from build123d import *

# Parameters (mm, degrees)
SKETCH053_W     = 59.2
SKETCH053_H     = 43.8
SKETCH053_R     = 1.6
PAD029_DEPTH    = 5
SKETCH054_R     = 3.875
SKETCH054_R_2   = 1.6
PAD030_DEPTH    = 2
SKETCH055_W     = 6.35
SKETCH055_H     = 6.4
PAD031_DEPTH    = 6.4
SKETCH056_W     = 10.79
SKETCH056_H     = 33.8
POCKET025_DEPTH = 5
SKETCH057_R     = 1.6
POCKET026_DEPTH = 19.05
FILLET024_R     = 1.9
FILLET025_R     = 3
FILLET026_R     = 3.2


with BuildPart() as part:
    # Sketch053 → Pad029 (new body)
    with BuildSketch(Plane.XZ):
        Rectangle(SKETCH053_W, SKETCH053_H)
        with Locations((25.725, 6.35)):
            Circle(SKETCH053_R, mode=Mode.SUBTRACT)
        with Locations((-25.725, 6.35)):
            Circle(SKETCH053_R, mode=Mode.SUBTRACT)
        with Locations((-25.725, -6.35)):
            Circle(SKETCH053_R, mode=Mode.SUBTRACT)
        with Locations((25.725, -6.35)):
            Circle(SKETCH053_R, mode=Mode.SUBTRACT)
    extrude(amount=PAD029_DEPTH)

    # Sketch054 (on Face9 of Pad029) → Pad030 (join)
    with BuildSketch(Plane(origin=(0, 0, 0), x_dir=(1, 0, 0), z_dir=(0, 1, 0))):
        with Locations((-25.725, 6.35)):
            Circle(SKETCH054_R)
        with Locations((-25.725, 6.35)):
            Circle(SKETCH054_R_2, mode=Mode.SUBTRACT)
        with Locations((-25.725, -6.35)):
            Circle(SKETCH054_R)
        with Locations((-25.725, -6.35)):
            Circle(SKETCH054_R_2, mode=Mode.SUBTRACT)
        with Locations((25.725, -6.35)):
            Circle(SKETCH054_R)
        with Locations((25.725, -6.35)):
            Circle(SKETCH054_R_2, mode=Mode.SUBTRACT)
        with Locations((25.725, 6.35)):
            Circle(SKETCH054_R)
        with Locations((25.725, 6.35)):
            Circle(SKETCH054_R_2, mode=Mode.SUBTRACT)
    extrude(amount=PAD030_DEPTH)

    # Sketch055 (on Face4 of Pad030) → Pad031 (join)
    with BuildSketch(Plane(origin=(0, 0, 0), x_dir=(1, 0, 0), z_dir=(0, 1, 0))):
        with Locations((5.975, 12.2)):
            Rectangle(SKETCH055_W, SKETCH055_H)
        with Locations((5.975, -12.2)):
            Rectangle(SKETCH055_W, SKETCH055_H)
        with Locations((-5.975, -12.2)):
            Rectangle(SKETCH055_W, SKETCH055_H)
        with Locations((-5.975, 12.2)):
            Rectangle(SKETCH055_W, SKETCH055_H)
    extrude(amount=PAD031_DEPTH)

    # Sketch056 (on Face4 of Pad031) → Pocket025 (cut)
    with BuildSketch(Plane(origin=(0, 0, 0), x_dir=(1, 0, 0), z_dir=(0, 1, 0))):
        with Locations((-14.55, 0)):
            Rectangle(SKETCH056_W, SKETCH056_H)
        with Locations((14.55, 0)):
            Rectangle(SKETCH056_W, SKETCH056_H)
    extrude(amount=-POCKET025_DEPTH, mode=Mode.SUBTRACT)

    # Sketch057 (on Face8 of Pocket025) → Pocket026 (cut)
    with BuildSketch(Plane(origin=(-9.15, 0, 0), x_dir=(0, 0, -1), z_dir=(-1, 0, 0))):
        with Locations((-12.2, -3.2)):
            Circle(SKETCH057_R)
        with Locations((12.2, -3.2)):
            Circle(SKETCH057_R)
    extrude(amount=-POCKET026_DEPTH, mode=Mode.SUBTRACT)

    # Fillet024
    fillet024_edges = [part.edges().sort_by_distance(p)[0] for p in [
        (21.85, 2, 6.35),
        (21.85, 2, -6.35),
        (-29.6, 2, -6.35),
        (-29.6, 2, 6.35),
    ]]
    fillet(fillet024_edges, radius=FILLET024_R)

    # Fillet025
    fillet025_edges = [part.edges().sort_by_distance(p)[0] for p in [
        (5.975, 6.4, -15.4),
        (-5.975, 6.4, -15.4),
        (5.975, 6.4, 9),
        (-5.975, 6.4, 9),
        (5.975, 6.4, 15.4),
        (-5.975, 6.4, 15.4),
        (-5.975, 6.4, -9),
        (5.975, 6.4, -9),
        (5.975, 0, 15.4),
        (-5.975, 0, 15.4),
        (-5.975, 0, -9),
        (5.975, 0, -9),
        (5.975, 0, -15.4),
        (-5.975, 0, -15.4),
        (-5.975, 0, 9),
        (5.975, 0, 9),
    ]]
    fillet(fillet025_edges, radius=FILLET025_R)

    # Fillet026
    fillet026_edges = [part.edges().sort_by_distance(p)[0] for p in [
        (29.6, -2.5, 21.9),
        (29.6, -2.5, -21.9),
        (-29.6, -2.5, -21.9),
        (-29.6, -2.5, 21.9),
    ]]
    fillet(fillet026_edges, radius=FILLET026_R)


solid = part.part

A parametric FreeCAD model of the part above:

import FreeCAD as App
import Part
import Sketcher

V = App.Vector


def edges_at(feature, points):
    """Names of the edges that pass closest to the given points."""
    edges = feature.Shape.Edges
    near = lambda p: min(range(len(edges)), key=lambda i: edges[i].distToShape(Part.Vertex(*p))[0])
    return sorted({f"Edge{near(p) + 1}" for p in points})


def add_polygon(sketch, points):
    """Adds a closed chain of lines whose ends are joined by coincident constraints."""
    first, n = sketch.GeometryCount, len(points)
    for a, b in zip(points, points[1:] + points[:1]):
        sketch.addGeometry(Part.LineSegment(App.Vector(*a, 0), App.Vector(*b, 0)), False)
    for i in range(n):
        sketch.addConstraint(Sketcher.Constraint("Coincident", first + i, 2, first + (i + 1) % n, 1))

doc = App.newDocument("Part")
body = doc.addObject("PartDesign::Body", "Body")

sketch1 = doc.addObject("Sketcher::SketchObject", "Sketch")
body.addObject(sketch1)
sketch1.AttachmentSupport = (doc.XZ_Plane, [""])
sketch1.MapMode = "FlatFace"
add_polygon(sketch1, [(-29.6, 21.9), (-29.6, -21.9), (29.6, -21.9), (29.6, 21.9)])
sketch1.addGeometry(Part.Circle(V(-25.7, -6.3, 0), V(0, 0, 1), 1.6), False)
sketch1.addGeometry(Part.Circle(V(25.7, -6.3, 0), V(0, 0, 1), 1.6), False)
sketch1.addGeometry(Part.Circle(V(-25.7, 6.3, 0), V(0, 0, 1), 1.6), False)
sketch1.addGeometry(Part.Circle(V(25.7, 6.3, 0), V(0, 0, 1), 1.6), False)
sketch1.addConstraint(Sketcher.Constraint("Vertical", 0))
sketch1.addConstraint(Sketcher.Constraint("Horizontal", 1))
sketch1.addConstraint(Sketcher.Constraint("Vertical", 2))
sketch1.addConstraint(Sketcher.Constraint("Horizontal", 3))
sketch1.addConstraint(Sketcher.Constraint("Equal", 4, 5))
sketch1.addConstraint(Sketcher.Constraint("Equal", 5, 6))
sketch1.addConstraint(Sketcher.Constraint("Equal", 6, 7))
sketch1.addConstraint(Sketcher.Constraint("Symmetric", 5, 3, 6, 3, -1, 1))
sketch1.addConstraint(Sketcher.Constraint("Symmetric", 4, 3, 7, 3, -1, 1))
sketch1.addConstraint(Sketcher.Constraint("Symmetric", 0, 2, 2, 2, -1, 1))
sketch1.addConstraint(Sketcher.Constraint("Symmetric", 4, 3, 5, 3, -2))
sketch1.addConstraint(Sketcher.Constraint("Diameter", 4, 3.2))
sketch1.addConstraint(Sketcher.Constraint("DistanceX", 1, 1, 1, 2, 59.2))
sketch1.addConstraint(Sketcher.Constraint("DistanceY", 0, 2, 0, 1, 43.8))
sketch1.addConstraint(Sketcher.Constraint("DistanceY", 4, 3, 6, 3, 12.7))
sketch1.addConstraint(Sketcher.Constraint("DistanceX", 4, 3, 5, 3, 51.45))
pad1 = doc.addObject("PartDesign::Pad", "Pad")
body.addObject(pad1)
pad1.Profile = sketch1
pad1.Length = 5

sketch2 = doc.addObject("Sketcher::SketchObject", "Sketch001")
body.addObject(sketch2)
sketch2.AttachmentSupport = (doc.XZ_Plane, [""])
sketch2.MapMode = "FlatFace"
sketch2.addGeometry(Part.Circle(V(-25.7, -6.3, 0), V(0, 0, 1), 3.9), False)
sketch2.addGeometry(Part.Circle(V(-25.7, -6.3, 0), V(0, 0, 1), 1.6), False)
sketch2.addGeometry(Part.Circle(V(-25.7, 6.3, 0), V(0, 0, 1), 3.9), False)
sketch2.addGeometry(Part.Circle(V(-25.7, 6.3, 0), V(0, 0, 1), 1.6), False)
sketch2.addGeometry(Part.Circle(V(25.7, 6.3, 0), V(0, 0, 1), 3.9), False)
sketch2.addGeometry(Part.Circle(V(25.7, 6.3, 0), V(0, 0, 1), 1.6), False)
sketch2.addGeometry(Part.Circle(V(25.7, -6.3, 0), V(0, 0, 1), 3.9), False)
sketch2.addGeometry(Part.Circle(V(25.7, -6.3, 0), V(0, 0, 1), 1.6), False)
sketch2.addConstraint(Sketcher.Constraint("Coincident", 1, 3, 0, 3))
sketch2.addConstraint(Sketcher.Constraint("Coincident", 3, 3, 2, 3))
sketch2.addConstraint(Sketcher.Constraint("Coincident", 5, 3, 4, 3))
sketch2.addConstraint(Sketcher.Constraint("Coincident", 7, 3, 6, 3))
sketch2.addConstraint(Sketcher.Constraint("Equal", 0, 2))
sketch2.addConstraint(Sketcher.Constraint("Equal", 1, 3))
sketch2.addConstraint(Sketcher.Constraint("Equal", 2, 4))
sketch2.addConstraint(Sketcher.Constraint("Equal", 3, 5))
sketch2.addConstraint(Sketcher.Constraint("Equal", 4, 6))
sketch2.addConstraint(Sketcher.Constraint("Equal", 5, 7))
sketch2.addConstraint(Sketcher.Constraint("Symmetric", 0, 3, 4, 3, -1, 1))
sketch2.addConstraint(Sketcher.Constraint("Symmetric", 2, 3, 6, 3, -1, 1))
sketch2.addConstraint(Sketcher.Constraint("Symmetric", 2, 3, 4, 3, -2))
sketch2.addConstraint(Sketcher.Constraint("Diameter", 1, 3.2))
sketch2.addConstraint(Sketcher.Constraint("Diameter", 0, 7.75))
sketch2.addConstraint(Sketcher.Constraint("DistanceY", 0, 3, 2, 3, 12.7))
sketch2.addConstraint(Sketcher.Constraint("DistanceX", 2, 3, 4, 3, 51.45))
pad2 = doc.addObject("PartDesign::Pad", "Pad001")
body.addObject(pad2)
pad2.Profile = sketch2
pad2.Length = 2
pad2.Reversed = True

sketch3 = doc.addObject("Sketcher::SketchObject", "Sketch002")
body.addObject(sketch3)
sketch3.AttachmentSupport = (doc.XZ_Plane, [""])
sketch3.MapMode = "FlatFace"
add_polygon(sketch3, [(3, -15), (3, -9), (9, -9), (9, -15)])
add_polygon(sketch3, [(3, 9), (3, 15), (9, 15), (9, 9)])
add_polygon(sketch3, [(-9, 9), (-9, 15), (-3, 15), (-3, 9)])
add_polygon(sketch3, [(-9, -15), (-9, -9), (-3, -9), (-3, -15)])
sketch3.addConstraint(Sketcher.Constraint("Vertical", 0))
sketch3.addConstraint(Sketcher.Constraint("Horizontal", 1))
sketch3.addConstraint(Sketcher.Constraint("Vertical", 2))
sketch3.addConstraint(Sketcher.Constraint("Horizontal", 3))
sketch3.addConstraint(Sketcher.Constraint("Vertical", 4))
sketch3.addConstraint(Sketcher.Constraint("Horizontal", 5))
sketch3.addConstraint(Sketcher.Constraint("Vertical", 6))
sketch3.addConstraint(Sketcher.Constraint("Horizontal", 7))
sketch3.addConstraint(Sketcher.Constraint("Vertical", 8))
sketch3.addConstraint(Sketcher.Constraint("Horizontal", 9))
sketch3.addConstraint(Sketcher.Constraint("Vertical", 10))
sketch3.addConstraint(Sketcher.Constraint("Horizontal", 11))
sketch3.addConstraint(Sketcher.Constraint("Vertical", 12))
sketch3.addConstraint(Sketcher.Constraint("Horizontal", 13))
sketch3.addConstraint(Sketcher.Constraint("Vertical", 14))
sketch3.addConstraint(Sketcher.Constraint("Horizontal", 15))
sketch3.addConstraint(Sketcher.Constraint("Symmetric", 2, 2, 8, 2, -1, 1))
sketch3.addConstraint(Sketcher.Constraint("Symmetric", 0, 2, 10, 2, -1, 1))
sketch3.addConstraint(Sketcher.Constraint("Symmetric", 6, 2, 12, 2, -1, 1))
sketch3.addConstraint(Sketcher.Constraint("Symmetric", 4, 2, 14, 2, -1, 1))
sketch3.addConstraint(Sketcher.Constraint("Symmetric", 5, 2, 8, 2, -2))
sketch3.addConstraint(Sketcher.Constraint("Symmetric", 7, 2, 10, 2, -2))
sketch3.addConstraint(Sketcher.Constraint("DistanceY", 0, 1, 0, 2, 6.4))
sketch3.addConstraint(Sketcher.Constraint("DistanceY", 0, 2, -1, 1, 9.0))
sketch3.addConstraint(Sketcher.Constraint("DistanceX", 1, 1, 1, 2, 6.35))
sketch3.addConstraint(Sketcher.Constraint("DistanceX", -1, 1, 0, 2, 2.8))
pad3 = doc.addObject("PartDesign::Pad", "Pad002")
body.addObject(pad3)
pad3.Profile = sketch3
pad3.Length = 6.4
pad3.Reversed = True

sketch4 = doc.addObject("Sketcher::SketchObject", "Sketch003")
body.addObject(sketch4)
sketch4.AttachmentSupport = (doc.XZ_Plane, [""])
sketch4.MapMode = "FlatFace"
add_polygon(sketch4, [(-20, -17), (-20, 17), (-9, 17), (-9, -17)])
add_polygon(sketch4, [(9, -17), (9, 17), (20, 17), (20, -17)])
sketch4.addConstraint(Sketcher.Constraint("Vertical", 0))
sketch4.addConstraint(Sketcher.Constraint("Horizontal", 1))
sketch4.addConstraint(Sketcher.Constraint("Vertical", 2))
sketch4.addConstraint(Sketcher.Constraint("Horizontal", 3))
sketch4.addConstraint(Sketcher.Constraint("Vertical", 4))
sketch4.addConstraint(Sketcher.Constraint("Horizontal", 5))
sketch4.addConstraint(Sketcher.Constraint("Vertical", 6))
sketch4.addConstraint(Sketcher.Constraint("Horizontal", 7))
sketch4.addConstraint(Sketcher.Constraint("Symmetric", 2, 2, 4, 2, -1, 1))
sketch4.addConstraint(Sketcher.Constraint("Symmetric", 0, 2, 6, 2, -1, 1))
sketch4.addConstraint(Sketcher.Constraint("Horizontal", 1, 2, 4, 2))
sketch4.addConstraint(Sketcher.Constraint("DistanceY", 0, 1, 0, 2, 33.8))
sketch4.addConstraint(Sketcher.Constraint("DistanceX", 1, 1, 1, 2, 10.79))
sketch4.addConstraint(Sketcher.Constraint("DistanceX", 0, 2, 4, 2, 29.1))
pocket1 = doc.addObject("PartDesign::Pocket", "Pocket")
body.addObject(pocket1)
pocket1.Profile = sketch4
pocket1.Length = 5
pocket1.Reversed = True

sketch5 = doc.addObject("Sketcher::SketchObject", "Sketch004")
body.addObject(sketch5)
sketch5.AttachmentSupport = (doc.YZ_Plane, [""])
sketch5.MapMode = "FlatFace"
sketch5.AttachmentOffset = App.Placement(V(0, 0, -9.15), App.Rotation())
sketch5.addGeometry(Part.Circle(V(3.2, 12.2, 0), V(0, 0, 1), 1.6), False)
sketch5.addGeometry(Part.Circle(V(3.2, -12.2, 0), V(0, 0, 1), 1.6), False)
sketch5.addConstraint(Sketcher.Constraint("Equal", 0, 1))
sketch5.addConstraint(Sketcher.Constraint("Symmetric", 0, 3, 1, 3, -1))
sketch5.addConstraint(Sketcher.Constraint("Diameter", 0, 3.2))
sketch5.addConstraint(Sketcher.Constraint("DistanceX", -1, 1, 0, 3, 3.2))
sketch5.addConstraint(Sketcher.Constraint("DistanceY", -1, 1, 0, 3, 12.2))
pocket2 = doc.addObject("PartDesign::Pocket", "Pocket001")
body.addObject(pocket2)
pocket2.Profile = sketch5
pocket2.Length = 19.05
pocket2.Reversed = True
doc.recompute()

fillet = doc.addObject("PartDesign::Fillet", "Fillet")
body.addObject(fillet)
fillet.Base = (pocket2, edges_at(pocket2, [
    (21.85, 2, 6.35),
    (21.85, 2, -6.35),
    (-29.6, 2, -6.35),
    (-29.6, 2, 6.35),
]))
fillet.Radius = 1.9
doc.recompute()

fillet2 = doc.addObject("PartDesign::Fillet", "Fillet001")
body.addObject(fillet2)
fillet2.Base = (fillet, edges_at(fillet, [
    (5.975, 6.4, -15.4),
    (-5.975, 6.4, -15.4),
    (5.975, 6.4, 9),
    (-5.975, 6.4, 9),
    (5.975, 6.4, 15.4),
    (-5.975, 6.4, 15.4),
    (-5.975, 6.4, -9),
    (5.975, 6.4, -9),
    (5.975, 0, 15.4),
    (-5.975, 0, 15.4),
    (-5.975, 0, -9),
    (5.975, 0, -9),
    (5.975, 0, -15.4),
    (-5.975, 0, -15.4),
    (-5.975, 0, 9),
    (5.975, 0, 9),
]))
fillet2.Radius = 3
doc.recompute()

fillet3 = doc.addObject("PartDesign::Fillet", "Fillet002")
body.addObject(fillet3)
fillet3.Base = (fillet2, edges_at(fillet2, [
    (29.6, -2.5, 21.9),
    (29.6, -2.5, -21.9),
    (-29.6, -2.5, -21.9),
    (-29.6, -2.5, 21.9),
]))
fillet3.Radius = 3.2

doc.recompute()
